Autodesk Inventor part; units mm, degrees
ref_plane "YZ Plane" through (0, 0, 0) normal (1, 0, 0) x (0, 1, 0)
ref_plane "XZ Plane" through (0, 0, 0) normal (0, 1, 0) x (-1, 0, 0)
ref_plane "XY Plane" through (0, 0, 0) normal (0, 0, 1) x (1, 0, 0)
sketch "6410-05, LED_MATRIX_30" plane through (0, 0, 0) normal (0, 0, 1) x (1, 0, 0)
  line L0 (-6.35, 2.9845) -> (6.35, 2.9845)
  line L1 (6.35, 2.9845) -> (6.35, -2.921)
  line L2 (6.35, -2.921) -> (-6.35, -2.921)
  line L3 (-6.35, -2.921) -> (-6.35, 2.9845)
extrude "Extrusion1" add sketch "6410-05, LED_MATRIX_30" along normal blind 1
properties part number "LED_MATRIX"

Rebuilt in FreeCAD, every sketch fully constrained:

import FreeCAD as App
import Part
import Sketcher
from FreeCAD import Vector
Q = App.Units.Quantity

doc = App.newDocument("Part")
params = doc.addObject("Spreadsheet::Sheet", "Params")
for row, (alias, value) in enumerate([
    ("sketch1_width", "12.7 mm"),
    ("pad1_length", "1 mm"),
], start=1):
    params.set(f"A{row}", alias)
    params.set(f"B{row}", "=" + value)
    params.setAlias(f"B{row}", alias)

body = doc.addObject("PartDesign::Body", "Body")

sketch1 = body.newObject("Sketcher::SketchObject", "Sketch")
sketch1.AttachmentSupport = (doc.getObject("XY_Plane"), [""])
sketch1.MapMode = "FlatFace"
sketch1.addGeometry([
    Part.LineSegment(Vector(6.35, 2.9845, 0), Vector(-6.35, 2.9845, 0)),
    Part.LineSegment(Vector(-6.35, 2.9845, 0), Vector(-6.35, -2.921, 0)),
    Part.LineSegment(Vector(-6.35, -2.921, 0), Vector(6.35, -2.921, 0)),
    Part.LineSegment(Vector(6.35, -2.921, 0), Vector(6.35, 2.9845, 0)),
], False)
sketch1.addConstraint([
    Sketcher.Constraint("Coincident", 0, 2, 1, 1),
    Sketcher.Constraint("Coincident", 1, 2, 2, 1),
    Sketcher.Constraint("Coincident", 2, 2, 3, 1),
    Sketcher.Constraint("Coincident", 3, 2, 0, 1),
    Sketcher.Constraint("Horizontal", 0),
    Sketcher.Constraint("Vertical", 1),
    Sketcher.Constraint("Horizontal", 2),
    Sketcher.Constraint("Vertical", 3),
    Sketcher.Constraint("DistanceX", 0, 2, 0, 1, Q("12.7 mm")),
    Sketcher.Constraint("DistanceX", 0, 2, -1, 1, Q("6.35 mm")),
    Sketcher.Constraint("DistanceY", 1, 2, 1, 1, Q("5.9055 mm")),
    Sketcher.Constraint("DistanceY", 1, 2, -1, 1, Q("2.921 mm")),
])
sketch1.setExpression("Constraints[8]", "Params.sketch1_width")
pad1 = body.newObject("PartDesign::Pad", "Pad")
pad1.Profile = sketch1
pad1.setExpression("Length", "Params.pad1_length")

doc.recompute()
